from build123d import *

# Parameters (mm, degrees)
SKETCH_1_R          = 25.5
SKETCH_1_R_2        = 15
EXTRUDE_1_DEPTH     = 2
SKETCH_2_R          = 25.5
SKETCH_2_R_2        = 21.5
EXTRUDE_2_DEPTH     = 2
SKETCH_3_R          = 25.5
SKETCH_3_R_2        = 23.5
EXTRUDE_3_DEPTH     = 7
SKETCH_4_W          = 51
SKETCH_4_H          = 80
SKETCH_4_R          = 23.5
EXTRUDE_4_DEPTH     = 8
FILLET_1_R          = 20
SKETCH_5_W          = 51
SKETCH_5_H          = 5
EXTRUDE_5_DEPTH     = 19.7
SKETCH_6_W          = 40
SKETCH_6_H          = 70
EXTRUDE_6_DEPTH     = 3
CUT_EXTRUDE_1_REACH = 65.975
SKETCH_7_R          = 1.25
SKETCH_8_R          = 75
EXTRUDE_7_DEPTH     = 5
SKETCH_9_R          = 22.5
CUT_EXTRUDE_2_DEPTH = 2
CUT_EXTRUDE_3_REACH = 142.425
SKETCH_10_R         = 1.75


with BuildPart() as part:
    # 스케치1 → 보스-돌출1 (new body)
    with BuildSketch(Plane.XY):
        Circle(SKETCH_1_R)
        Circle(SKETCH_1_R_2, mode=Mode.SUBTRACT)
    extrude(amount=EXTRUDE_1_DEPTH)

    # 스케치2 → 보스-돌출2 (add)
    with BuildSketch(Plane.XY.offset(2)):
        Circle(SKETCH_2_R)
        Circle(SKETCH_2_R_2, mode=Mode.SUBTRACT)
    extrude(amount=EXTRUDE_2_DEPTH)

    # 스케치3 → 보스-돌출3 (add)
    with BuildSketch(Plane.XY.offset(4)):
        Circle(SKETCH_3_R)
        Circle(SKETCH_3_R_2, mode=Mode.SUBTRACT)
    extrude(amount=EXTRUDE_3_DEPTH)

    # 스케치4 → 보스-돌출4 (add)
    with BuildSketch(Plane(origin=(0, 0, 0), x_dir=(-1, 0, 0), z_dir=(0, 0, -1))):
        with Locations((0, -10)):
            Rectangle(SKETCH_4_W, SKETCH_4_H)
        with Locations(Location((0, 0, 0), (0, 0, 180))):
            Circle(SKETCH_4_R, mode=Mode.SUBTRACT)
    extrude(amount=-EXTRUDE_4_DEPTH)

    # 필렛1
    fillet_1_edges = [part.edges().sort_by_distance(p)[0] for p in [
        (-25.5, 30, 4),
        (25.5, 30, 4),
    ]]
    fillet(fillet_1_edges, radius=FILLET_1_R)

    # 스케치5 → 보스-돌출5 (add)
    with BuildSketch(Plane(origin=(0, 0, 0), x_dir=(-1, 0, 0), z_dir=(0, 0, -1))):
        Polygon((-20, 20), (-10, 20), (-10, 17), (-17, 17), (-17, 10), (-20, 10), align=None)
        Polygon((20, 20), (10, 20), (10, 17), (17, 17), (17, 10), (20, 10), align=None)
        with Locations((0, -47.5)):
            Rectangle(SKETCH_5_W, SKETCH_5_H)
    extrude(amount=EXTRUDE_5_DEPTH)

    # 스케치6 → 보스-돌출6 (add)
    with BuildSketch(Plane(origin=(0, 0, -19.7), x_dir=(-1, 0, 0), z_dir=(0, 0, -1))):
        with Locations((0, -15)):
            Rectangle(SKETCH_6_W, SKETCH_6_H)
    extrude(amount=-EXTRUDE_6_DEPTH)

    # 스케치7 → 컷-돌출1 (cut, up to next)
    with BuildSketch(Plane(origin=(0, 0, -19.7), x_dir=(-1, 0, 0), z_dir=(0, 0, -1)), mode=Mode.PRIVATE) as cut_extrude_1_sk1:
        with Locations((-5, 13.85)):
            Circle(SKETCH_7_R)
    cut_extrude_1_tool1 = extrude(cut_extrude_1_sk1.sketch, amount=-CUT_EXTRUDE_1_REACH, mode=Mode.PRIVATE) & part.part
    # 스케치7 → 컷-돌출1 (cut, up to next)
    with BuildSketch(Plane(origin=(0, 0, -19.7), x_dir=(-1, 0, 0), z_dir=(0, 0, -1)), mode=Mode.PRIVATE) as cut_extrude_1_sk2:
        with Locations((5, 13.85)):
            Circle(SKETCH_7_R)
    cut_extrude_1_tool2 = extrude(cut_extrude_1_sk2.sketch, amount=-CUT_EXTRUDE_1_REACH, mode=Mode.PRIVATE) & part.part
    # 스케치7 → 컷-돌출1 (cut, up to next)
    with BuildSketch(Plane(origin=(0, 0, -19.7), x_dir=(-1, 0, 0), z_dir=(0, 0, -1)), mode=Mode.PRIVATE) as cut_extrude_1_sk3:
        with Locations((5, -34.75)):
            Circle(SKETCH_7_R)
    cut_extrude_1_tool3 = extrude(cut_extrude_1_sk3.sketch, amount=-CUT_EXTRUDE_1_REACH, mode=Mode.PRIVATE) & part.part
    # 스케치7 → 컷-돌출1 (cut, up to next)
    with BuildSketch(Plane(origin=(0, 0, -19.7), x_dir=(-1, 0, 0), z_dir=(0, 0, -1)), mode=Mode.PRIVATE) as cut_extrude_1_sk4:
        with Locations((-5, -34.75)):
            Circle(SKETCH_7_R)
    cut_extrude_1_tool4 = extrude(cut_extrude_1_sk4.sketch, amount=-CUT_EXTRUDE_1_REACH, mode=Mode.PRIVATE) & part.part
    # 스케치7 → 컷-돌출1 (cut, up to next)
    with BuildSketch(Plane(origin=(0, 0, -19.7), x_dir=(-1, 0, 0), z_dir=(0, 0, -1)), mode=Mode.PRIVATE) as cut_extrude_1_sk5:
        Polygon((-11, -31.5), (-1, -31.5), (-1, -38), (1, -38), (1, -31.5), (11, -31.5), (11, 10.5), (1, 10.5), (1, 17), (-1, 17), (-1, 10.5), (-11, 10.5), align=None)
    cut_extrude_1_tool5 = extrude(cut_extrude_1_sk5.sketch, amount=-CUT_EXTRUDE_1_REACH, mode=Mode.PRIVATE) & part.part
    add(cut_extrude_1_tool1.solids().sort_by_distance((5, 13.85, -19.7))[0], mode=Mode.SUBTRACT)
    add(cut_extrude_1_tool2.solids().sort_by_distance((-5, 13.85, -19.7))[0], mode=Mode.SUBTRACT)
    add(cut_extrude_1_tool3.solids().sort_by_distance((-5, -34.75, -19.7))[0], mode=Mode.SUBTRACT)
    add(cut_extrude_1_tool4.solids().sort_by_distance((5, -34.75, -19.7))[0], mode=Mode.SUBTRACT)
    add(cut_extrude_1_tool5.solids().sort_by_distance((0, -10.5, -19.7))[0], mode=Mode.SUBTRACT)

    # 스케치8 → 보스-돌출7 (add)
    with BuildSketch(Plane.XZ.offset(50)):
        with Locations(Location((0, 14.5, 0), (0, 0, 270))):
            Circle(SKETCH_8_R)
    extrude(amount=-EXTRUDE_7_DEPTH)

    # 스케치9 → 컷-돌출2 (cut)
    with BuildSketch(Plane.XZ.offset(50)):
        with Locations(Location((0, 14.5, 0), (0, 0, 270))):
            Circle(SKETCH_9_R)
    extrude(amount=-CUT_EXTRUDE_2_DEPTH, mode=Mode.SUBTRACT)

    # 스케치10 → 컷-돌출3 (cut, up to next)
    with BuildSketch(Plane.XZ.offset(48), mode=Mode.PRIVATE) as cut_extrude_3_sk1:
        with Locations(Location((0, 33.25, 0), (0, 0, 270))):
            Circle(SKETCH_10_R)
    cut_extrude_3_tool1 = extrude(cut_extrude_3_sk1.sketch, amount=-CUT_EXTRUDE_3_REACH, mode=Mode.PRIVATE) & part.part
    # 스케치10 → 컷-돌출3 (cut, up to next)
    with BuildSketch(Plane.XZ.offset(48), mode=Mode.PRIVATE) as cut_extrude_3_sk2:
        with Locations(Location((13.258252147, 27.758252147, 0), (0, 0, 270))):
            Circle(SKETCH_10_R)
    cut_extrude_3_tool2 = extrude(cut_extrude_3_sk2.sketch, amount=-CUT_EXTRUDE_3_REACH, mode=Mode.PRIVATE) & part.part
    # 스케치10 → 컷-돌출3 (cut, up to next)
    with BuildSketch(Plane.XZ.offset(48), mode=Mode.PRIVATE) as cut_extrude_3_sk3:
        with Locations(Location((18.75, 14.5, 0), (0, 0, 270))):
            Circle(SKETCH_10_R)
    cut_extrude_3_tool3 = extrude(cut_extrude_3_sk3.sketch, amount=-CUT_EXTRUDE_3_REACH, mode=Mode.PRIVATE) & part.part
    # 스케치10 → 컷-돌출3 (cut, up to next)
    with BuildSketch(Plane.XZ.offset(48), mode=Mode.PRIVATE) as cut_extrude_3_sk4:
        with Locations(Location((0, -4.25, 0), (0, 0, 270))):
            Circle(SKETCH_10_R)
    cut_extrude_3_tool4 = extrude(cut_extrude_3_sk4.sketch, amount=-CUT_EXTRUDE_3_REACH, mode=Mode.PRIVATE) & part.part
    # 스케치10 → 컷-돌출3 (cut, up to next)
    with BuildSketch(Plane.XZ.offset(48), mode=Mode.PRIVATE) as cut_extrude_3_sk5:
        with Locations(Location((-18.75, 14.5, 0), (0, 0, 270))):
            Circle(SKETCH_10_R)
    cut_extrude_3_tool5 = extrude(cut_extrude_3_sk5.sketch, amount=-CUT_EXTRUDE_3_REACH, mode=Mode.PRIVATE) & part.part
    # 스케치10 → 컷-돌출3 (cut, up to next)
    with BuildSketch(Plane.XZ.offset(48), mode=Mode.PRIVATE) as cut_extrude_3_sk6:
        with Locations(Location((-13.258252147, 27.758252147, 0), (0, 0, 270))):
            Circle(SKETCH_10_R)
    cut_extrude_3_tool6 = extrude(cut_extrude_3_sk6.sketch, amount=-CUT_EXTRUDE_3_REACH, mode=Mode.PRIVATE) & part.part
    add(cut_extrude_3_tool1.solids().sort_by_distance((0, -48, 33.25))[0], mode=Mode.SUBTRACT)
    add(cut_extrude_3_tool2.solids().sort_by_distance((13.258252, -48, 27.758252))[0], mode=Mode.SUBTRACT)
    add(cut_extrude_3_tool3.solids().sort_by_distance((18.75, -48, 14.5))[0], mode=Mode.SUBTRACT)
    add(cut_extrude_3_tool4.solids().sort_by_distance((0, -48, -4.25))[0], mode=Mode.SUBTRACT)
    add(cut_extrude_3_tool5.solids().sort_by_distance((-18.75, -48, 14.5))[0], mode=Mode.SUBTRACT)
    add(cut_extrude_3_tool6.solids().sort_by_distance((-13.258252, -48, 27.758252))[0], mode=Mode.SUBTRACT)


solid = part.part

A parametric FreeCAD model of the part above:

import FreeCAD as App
import Part
import Sketcher


def edges_at(feature, points):
    """Names of the edges that pass closest to the given points."""
    edges = feature.Shape.Edges
    near = lambda p: min(range(len(edges)), key=lambda i: edges[i].distToShape(Part.Vertex(*p))[0])
    return sorted({f"Edge{near(p) + 1}" for p in points})


def add_polygon(sketch, points):
    """Adds a closed chain of lines whose ends are joined by coincident constraints."""
    first, n = sketch.GeometryCount, len(points)
    for a, b in zip(points, points[1:] + points[:1]):
        sketch.addGeometry(Part.LineSegment(App.Vector(*a, 0), App.Vector(*b, 0)), False)
    for i in range(n):
        sketch.addConstraint(Sketcher.Constraint("Coincident", first + i, 2, first + (i + 1) % n, 1))

doc = App.newDocument("Part")
body = doc.addObject("PartDesign::Body", "Body")

# Sketch on XY plane
sketch1 = body.newObject("Sketcher::SketchObject", "Sketch")
sketch1.AttachmentSupport = (doc.getObject("XY_Plane"), [""])
sketch1.MapMode = "FlatFace"
sketch1.addGeometry([
    Part.Circle(App.Vector(0, 0, 0), App.Vector(0, 0, 1), 26),
    Part.Circle(App.Vector(0, 0, 0), App.Vector(0, 0, 1), 15),
], False)
sketch1.addConstraint([
    Sketcher.Constraint("Coincident", 0, 3, -1, 1),
    Sketcher.Constraint("Coincident", 1, 3, -1, 1),
    Sketcher.Constraint("Diameter", 0, 51.0),
    Sketcher.Constraint("Diameter", 1, 30.0),
])
pad1 = body.newObject("PartDesign::Pad", "Pad")
pad1.Profile = sketch1
pad1.Length = 2

# Sketch on XY plane
sketch2 = body.newObject("Sketcher::SketchObject", "Sketch001")
sketch2.AttachmentSupport = (doc.getObject("XY_Plane"), [""])
sketch2.MapMode = "FlatFace"
sketch2.AttachmentOffset = App.Placement(App.Vector(0, 0, 2), App.Rotation())
sketch2.addGeometry([
    Part.Circle(App.Vector(0, 0, 0), App.Vector(0, 0, 1), 26),
    Part.Circle(App.Vector(0, 0, 0), App.Vector(0, 0, 1), 22),
], False)
sketch2.addConstraint([
    Sketcher.Constraint("Coincident", 0, 3, -1, 1),
    Sketcher.Constraint("Coincident", 1, 3, -1, 1),
    Sketcher.Constraint("Diameter", 0, 51.0),
    Sketcher.Constraint("Diameter", 1, 43.0),
])
pad2 = body.newObject("PartDesign::Pad", "Pad001")
pad2.Profile = sketch2
pad2.Length = 2

# Sketch on XY plane
sketch3 = body.newObject("Sketcher::SketchObject", "Sketch002")
sketch3.AttachmentSupport = (doc.getObject("XY_Plane"), [""])
sketch3.MapMode = "FlatFace"
sketch3.AttachmentOffset = App.Placement(App.Vector(0, 0, 4), App.Rotation())
sketch3.addGeometry([
    Part.Circle(App.Vector(0, 0, 0), App.Vector(0, 0, 1), 26),
    Part.Circle(App.Vector(0, 0, 0), App.Vector(0, 0, 1), 24),
], False)
sketch3.addConstraint([
    Sketcher.Constraint("Coincident", 0, 3, -1, 1),
    Sketcher.Constraint("Coincident", 1, 3, -1, 1),
    Sketcher.Constraint("Diameter", 0, 51.0),
    Sketcher.Constraint("Diameter", 1, 47.0),
])
pad3 = body.newObject("PartDesign::Pad", "Pad002")
pad3.Profile = sketch3
pad3.Length = 7

# Sketch on XY plane
sketch4 = body.newObject("Sketcher::SketchObject", "Sketch003")
sketch4.AttachmentSupport = (doc.getObject("XY_Plane"), [""])
sketch4.MapMode = "FlatFace"
add_polygon(sketch4, [(26, 30), (26, -50), (-26, -50), (-26, 30)])  # lines 0-3
sketch4.addGeometry(Part.Circle(App.Vector(0, 0, 0), App.Vector(0, 0, 1), 24), False)  # 4
sketch4.addConstraint([
    Sketcher.Constraint("Vertical", 0),
    Sketcher.Constraint("Horizontal", 1),
    Sketcher.Constraint("Vertical", 2),
    Sketcher.Constraint("Horizontal", 3),
    Sketcher.Constraint("Coincident", 4, 3, -1, 1),
    Sketcher.Constraint("Diameter", 4, 47.0),
    Sketcher.Constraint("DistanceX", 1, 2, 1, 1, 51.0),
    Sketcher.Constraint("DistanceY", 0, 2, 0, 1, 80.0),
    Sketcher.Constraint("DistanceY", 0, 2, -1, 1, 50.0),
    Sketcher.Constraint("DistanceX", -1, 1, 0, 2, 25.5),
])
pad4 = body.newObject("PartDesign::Pad", "Pad003")
pad4.Profile = sketch4
pad4.Length = 8
doc.recompute()

fillet = body.newObject("PartDesign::Fillet", "Fillet")
fillet.Base = (pad4, edges_at(pad4, [(-25.5, 30, 4), (25.5, 30, 4)]))
fillet.Radius = 20

# Sketch on XY plane
sketch5 = body.newObject("Sketcher::SketchObject", "Sketch004")
sketch5.AttachmentSupport = (doc.getObject("XY_Plane"), [""])
sketch5.MapMode = "FlatFace"
add_polygon(sketch5, [(10, 20), (20, 20), (20, 10), (17, 10), (17, 17), (10, 17)])  # lines 0-5
add_polygon(sketch5, [(-20, 20), (-10, 20), (-10, 17), (-17, 17), (-17, 10), (-20, 10)])  # lines 6-11
add_polygon(sketch5, [(25.5, -45), (25.5, -50), (-25.5, -50), (-25.5, -45)])  # lines 12-15
sketch5.addConstraint([
    Sketcher.Constraint("Horizontal", 0),
    Sketcher.Constraint("Vertical", 1),
    Sketcher.Constraint("Horizontal", 2),
    Sketcher.Constraint("Vertical", 3),
    Sketcher.Constraint("Horizontal", 4),
    Sketcher.Constraint("Vertical", 5),
    Sketcher.Constraint("Horizontal", 6),
    Sketcher.Constraint("Vertical", 7),
    Sketcher.Constraint("Horizontal", 8),
    Sketcher.Constraint("Vertical", 9),
    Sketcher.Constraint("Horizontal", 10),
    Sketcher.Constraint("Vertical", 11),
    Sketcher.Constraint("Vertical", 12),
    Sketcher.Constraint("Horizontal", 13),
    Sketcher.Constraint("Vertical", 14),
    Sketcher.Constraint("Horizontal", 15),
    Sketcher.Constraint("Symmetric", 5, 2, 6, 2, -2),
    Sketcher.Constraint("Symmetric", 3, 2, 8, 2, -2),
    Sketcher.Constraint("Symmetric", 1, 2, 10, 2, -2),
    Sketcher.Constraint("Equal", 6, 1),
    Sketcher.Constraint("Equal", 8, 3),
    Sketcher.Constraint("DistanceX", 0, 1, 0, 2, 10.0),
    Sketcher.Constraint("DistanceX", 2, 2, 2, 1, 3.0),
    Sketcher.Constraint("DistanceX", 13, 2, 13, 1, 51.0),
    Sketcher.Constraint("DistanceY", 12, 2, 12, 1, 5.0),
    Sketcher.Constraint("DistanceX", -1, 1, 0, 2, 20.0),
    Sketcher.Constraint("DistanceY", -1, 1, 0, 2, 20.0),
    Sketcher.Constraint("DistanceY", 12, 2, -1, 1, 50.0),
    Sketcher.Constraint("DistanceX", -1, 1, 12, 2, 25.5),
])
pad5 = body.newObject("PartDesign::Pad", "Pad004")
pad5.Profile = sketch5
pad5.Length = 19.7
pad5.Reversed = True

# Sketch on XY plane
sketch6 = body.newObject("Sketcher::SketchObject", "Sketch005")
sketch6.AttachmentSupport = (doc.getObject("XY_Plane"), [""])
sketch6.MapMode = "FlatFace"
sketch6.AttachmentOffset = App.Placement(App.Vector(0, 0, -19.7), App.Rotation())
add_polygon(sketch6, [(20, 20), (20, -50), (-20, -50), (-20, 20)])  # lines 0-3
sketch6.addConstraint([
    Sketcher.Constraint("Vertical", 0),
    Sketcher.Constraint("Horizontal", 1),
    Sketcher.Constraint("Vertical", 2),
    Sketcher.Constraint("Horizontal", 3),
    Sketcher.Constraint("DistanceX", 1, 2, 1, 1, 40.0),
    Sketcher.Constraint("DistanceY", 0, 2, 0, 1, 70.0),
    Sketcher.Constraint("DistanceX", -1, 1, 0, 2, 20.0),
    Sketcher.Constraint("DistanceY", 0, 2, -1, 1, 50.0),
])
pad6 = body.newObject("PartDesign::Pad", "Pad005")
pad6.Profile = sketch6
pad6.Length = 3

# Sketch on XY plane
sketch7 = body.newObject("Sketcher::SketchObject", "Sketch006")
sketch7.AttachmentSupport = (doc.getObject("XY_Plane"), [""])
sketch7.MapMode = "FlatFace"
sketch7.AttachmentOffset = App.Placement(App.Vector(0, 0, -19.7), App.Rotation())
sketch7.addGeometry(Part.Circle(App.Vector(5, 13.8, 0), App.Vector(0, 0, 1), 1.2), False)
sketch7.addConstraint([
    Sketcher.Constraint("Diameter", 0, 2.5),
    Sketcher.Constraint("DistanceX", -1, 1, 0, 3, 5.0),
    Sketcher.Constraint("DistanceY", -1, 1, 0, 3, 13.85),
])
pocket1 = body.newObject("PartDesign::Pocket", "Pocket")
pocket1.Profile = sketch7
pocket1.Type = "UpToFirst"
pocket1.Reversed = True

# Sketch on XY plane
sketch8 = body.newObject("Sketcher::SketchObject", "Sketch007")
sketch8.AttachmentSupport = (doc.getObject("XY_Plane"), [""])
sketch8.MapMode = "FlatFace"
sketch8.AttachmentOffset = App.Placement(App.Vector(0, 0, -19.7), App.Rotation())
sketch8.addGeometry(Part.Circle(App.Vector(-5, 13.8, 0), App.Vector(0, 0, 1), 1.2), False)
sketch8.addConstraint([
    Sketcher.Constraint("Diameter", 0, 2.5),
    Sketcher.Constraint("DistanceX", 0, 3, -1, 1, 5.0),
    Sketcher.Constraint("DistanceY", -1, 1, 0, 3, 13.85),
])
pocket2 = body.newObject("PartDesign::Pocket", "Pocket001")
pocket2.Profile = sketch8
pocket2.Type = "UpToFirst"
pocket2.Reversed = True

# Sketch on XY plane
sketch9 = body.newObject("Sketcher::SketchObject", "Sketch008")
sketch9.AttachmentSupport = (doc.getObject("XY_Plane"), [""])
sketch9.MapMode = "FlatFace"
sketch9.AttachmentOffset = App.Placement(App.Vector(0, 0, -19.7), App.Rotation())
sketch9.addGeometry(Part.Circle(App.Vector(-5, -34.8, 0), App.Vector(0, 0, 1), 1.2), False)
sketch9.addConstraint([
    Sketcher.Constraint("Diameter", 0, 2.5),
    Sketcher.Constraint("DistanceX", 0, 3, -1, 1, 5.0),
    Sketcher.Constraint("DistanceY", 0, 3, -1, 1, 34.75),
])
pocket3 = body.newObject("PartDesign::Pocket", "Pocket002")
pocket3.Profile = sketch9
pocket3.Type = "UpToFirst"
pocket3.Reversed = True

# Sketch on XY plane
sketch10 = body.newObject("Sketcher::SketchObject", "Sketch009")
sketch10.AttachmentSupport = (doc.getObject("XY_Plane"), [""])
sketch10.MapMode = "FlatFace"
sketch10.AttachmentOffset = App.Placement(App.Vector(0, 0, -19.7), App.Rotation())
sketch10.addGeometry(Part.Circle(App.Vector(5, -34.8, 0), App.Vector(0, 0, 1), 1.2), False)
sketch10.addConstraint([
    Sketcher.Constraint("Diameter", 0, 2.5),
    Sketcher.Constraint("DistanceX", -1, 1, 0, 3, 5.0),
    Sketcher.Constraint("DistanceY", 0, 3, -1, 1, 34.75),
])
pocket4 = body.newObject("PartDesign::Pocket", "Pocket003")
pocket4.Profile = sketch10
pocket4.Type = "UpToFirst"
pocket4.Reversed = True

# Sketch on XY plane
sketch11 = body.newObject("Sketcher::SketchObject", "Sketch010")
sketch11.AttachmentSupport = (doc.getObject("XY_Plane"), [""])
sketch11.MapMode = "FlatFace"
sketch11.AttachmentOffset = App.Placement(App.Vector(0, 0, -19.7), App.Rotation())
add_polygon(sketch11, [(11, -31.5), (1, -31.5), (1, -38), (-1, -38), (-1, -31.5), (-11, -31.5), (-11, 10.5), (-1, 10.5), (-1, 17), (1, 17), (1, 10.5), (11, 10.5)])  # lines 0-11
sketch11.addConstraint([
    Sketcher.Constraint("Horizontal", 0),
    Sketcher.Constraint("Vertical", 1),
    Sketcher.Constraint("Horizontal", 2),
    Sketcher.Constraint("Vertical", 3),
    Sketcher.Constraint("Horizontal", 4),
    Sketcher.Constraint("Vertical", 5),
    Sketcher.Constraint("Horizontal", 6),
    Sketcher.Constraint("Vertical", 7),
    Sketcher.Constraint("Horizontal", 8),
    Sketcher.Constraint("Vertical", 9),
    Sketcher.Constraint("Horizontal", 10),
    Sketcher.Constraint("Vertical", 11),
    Sketcher.Constraint("Symmetric", 0, 2, 3, 2, -2),
    Sketcher.Constraint("Symmetric", 6, 2, 9, 2, -2),
    Sketcher.Constraint("Vertical", 3, 2, 6, 2),
    Sketcher.Constraint("Equal", 0, 4),
    Sketcher.Constraint("Equal", 3, 7),
    Sketcher.Constraint("DistanceX", 0, 2, 0, 1, 10.0),
    Sketcher.Constraint("DistanceX", 2, 2, 2, 1, 2.0),
    Sketcher.Constraint("DistanceY", 5, 1, 5, 2, 42.0),
    Sketcher.Constraint("DistanceY", 1, 2, 1, 1, 6.5),
    Sketcher.Constraint("DistanceY", 1, 2, -1, 1, 38.0),
])
pocket5 = body.newObject("PartDesign::Pocket", "Pocket004")
pocket5.Profile = sketch11
pocket5.Type = "UpToFirst"
pocket5.Reversed = True

# Sketch on XZ plane
sketch12 = body.newObject("Sketcher::SketchObject", "Sketch011")
sketch12.AttachmentSupport = (doc.getObject("XZ_Plane"), [""])
sketch12.MapMode = "FlatFace"
sketch12.AttachmentOffset = App.Placement(App.Vector(0, 0, 50), App.Rotation())
sketch12.addGeometry(Part.Circle(App.Vector(0, 14, 0), App.Vector(0, 0, 1), 75), False)
sketch12.addConstraint([
    Sketcher.Constraint("PointOnObject", 0, 3, -2),
    Sketcher.Constraint("Diameter", 0, 150.0),
    Sketcher.Constraint("DistanceY", -1, 1, 0, 3, 14.5),
])
pad7 = body.newObject("PartDesign::Pad", "Pad006")
pad7.Profile = sketch12
pad7.Length = 5
pad7.Reversed = True

# Sketch on XZ plane
sketch13 = body.newObject("Sketcher::SketchObject", "Sketch012")
sketch13.AttachmentSupport = (doc.getObject("XZ_Plane"), [""])
sketch13.MapMode = "FlatFace"
sketch13.AttachmentOffset = App.Placement(App.Vector(0, 0, 50), App.Rotation())
sketch13.addGeometry(Part.Circle(App.Vector(0, 14, 0), App.Vector(0, 0, 1), 22), False)
sketch13.addConstraint([
    Sketcher.Constraint("PointOnObject", 0, 3, -2),
    Sketcher.Constraint("Diameter", 0, 45.0),
    Sketcher.Constraint("DistanceY", -1, 1, 0, 3, 14.5),
])
pocket6 = body.newObject("PartDesign::Pocket", "Pocket005")
pocket6.Profile = sketch13
pocket6.Length = 2

# Sketch on XZ plane
sketch14 = body.newObject("Sketcher::SketchObject", "Sketch013")
sketch14.AttachmentSupport = (doc.getObject("XZ_Plane"), [""])
sketch14.MapMode = "FlatFace"
sketch14.AttachmentOffset = App.Placement(App.Vector(0, 0, 48), App.Rotation())
sketch14.addGeometry(Part.Circle(App.Vector(0, 33.2, 0), App.Vector(0, 0, 1), 1.8), False)
sketch14.addConstraint([
    Sketcher.Constraint("PointOnObject", 0, 3, -2),
    Sketcher.Constraint("Diameter", 0, 3.5),
    Sketcher.Constraint("DistanceY", -1, 1, 0, 3, 33.25),
])
pocket7 = body.newObject("PartDesign::Pocket", "Pocket006")
pocket7.Profile = sketch14
pocket7.Type = "UpToFirst"

# Sketch on XZ plane
sketch15 = body.newObject("Sketcher::SketchObject", "Sketch014")
sketch15.AttachmentSupport = (doc.getObject("XZ_Plane"), [""])
sketch15.MapMode = "FlatFace"
sketch15.AttachmentOffset = App.Placement(App.Vector(0, 0, 48), App.Rotation())
sketch15.addGeometry(Part.Circle(App.Vector(13.3, 27.8, 0), App.Vector(0, 0, 1), 1.8), False)
sketch15.addConstraint([
    Sketcher.Constraint("Diameter", 0, 3.5),
    Sketcher.Constraint("DistanceX", -1, 1, 0, 3, 13.258252),
    Sketcher.Constraint("DistanceY", -1, 1, 0, 3, 27.758252),
])
pocket8 = body.newObject("PartDesign::Pocket", "Pocket007")
pocket8.Profile = sketch15
pocket8.Type = "UpToFirst"

# Sketch on XZ plane
sketch16 = body.newObject("Sketcher::SketchObject", "Sketch015")
sketch16.AttachmentSupport = (doc.getObject("XZ_Plane"), [""])
sketch16.MapMode = "FlatFace"
sketch16.AttachmentOffset = App.Placement(App.Vector(0, 0, 48), App.Rotation())
sketch16.addGeometry(Part.Circle(App.Vector(18.8, 14.5, 0), App.Vector(0, 0, 1), 1.8), False)
sketch16.addConstraint([
    Sketcher.Constraint("Diameter", 0, 3.5),
    Sketcher.Constraint("DistanceY", -1, 1, 0, 3, 14.5),
    Sketcher.Constraint("DistanceX", -1, 1, 0, 3, 18.75),
])
pocket9 = body.newObject("PartDesign::Pocket", "Pocket008")
pocket9.Profile = sketch16
pocket9.Type = "UpToFirst"

# Sketch on XZ plane
sketch17 = body.newObject("Sketcher::SketchObject", "Sketch016")
sketch17.AttachmentSupport = (doc.getObject("XZ_Plane"), [""])
sketch17.MapMode = "FlatFace"
sketch17.AttachmentOffset = App.Placement(App.Vector(0, 0, 48), App.Rotation())
sketch17.addGeometry(Part.Circle(App.Vector(0, -4.2, 0), App.Vector(0, 0, 1), 1.8), False)
sketch17.addConstraint([
    Sketcher.Constraint("PointOnObject", 0, 3, -2),
    Sketcher.Constraint("Diameter", 0, 3.5),
    Sketcher.Constraint("DistanceY", 0, 3, -1, 1, 4.25),
])
pocket10 = body.newObject("PartDesign::Pocket", "Pocket009")
pocket10.Profile = sketch17
pocket10.Type = "UpToFirst"

# Sketch on XZ plane
sketch18 = body.newObject("Sketcher::SketchObject", "Sketch017")
sketch18.AttachmentSupport = (doc.getObject("XZ_Plane"), [""])
sketch18.MapMode = "FlatFace"
sketch18.AttachmentOffset = App.Placement(App.Vector(0, 0, 48), App.Rotation())
sketch18.addGeometry(Part.Circle(App.Vector(-18.8, 14.5, 0), App.Vector(0, 0, 1), 1.8), False)
sketch18.addConstraint([
    Sketcher.Constraint("Diameter", 0, 3.5),
    Sketcher.Constraint("DistanceY", -1, 1, 0, 3, 14.5),
    Sketcher.Constraint("DistanceX", 0, 3, -1, 1, 18.75),
])
pocket11 = body.newObject("PartDesign::Pocket", "Pocket010")
pocket11.Profile = sketch18
pocket11.Type = "UpToFirst"

# Sketch on XZ plane
sketch19 = body.newObject("Sketcher::SketchObject", "Sketch018")
sketch19.AttachmentSupport = (doc.getObject("XZ_Plane"), [""])
sketch19.MapMode = "FlatFace"
sketch19.AttachmentOffset = App.Placement(App.Vector(0, 0, 48), App.Rotation())
sketch19.addGeometry(Part.Circle(App.Vector(-13.3, 27.8, 0), App.Vector(0, 0, 1), 1.8), False)
sketch19.addConstraint([
    Sketcher.Constraint("Diameter", 0, 3.5),
    Sketcher.Constraint("DistanceX", 0, 3, -1, 1, 13.258252),
    Sketcher.Constraint("DistanceY", -1, 1, 0, 3, 27.758252),
])
pocket12 = body.newObject("PartDesign::Pocket", "Pocket011")
pocket12.Profile = sketch19
pocket12.Type = "UpToFirst"

doc.recompute()
